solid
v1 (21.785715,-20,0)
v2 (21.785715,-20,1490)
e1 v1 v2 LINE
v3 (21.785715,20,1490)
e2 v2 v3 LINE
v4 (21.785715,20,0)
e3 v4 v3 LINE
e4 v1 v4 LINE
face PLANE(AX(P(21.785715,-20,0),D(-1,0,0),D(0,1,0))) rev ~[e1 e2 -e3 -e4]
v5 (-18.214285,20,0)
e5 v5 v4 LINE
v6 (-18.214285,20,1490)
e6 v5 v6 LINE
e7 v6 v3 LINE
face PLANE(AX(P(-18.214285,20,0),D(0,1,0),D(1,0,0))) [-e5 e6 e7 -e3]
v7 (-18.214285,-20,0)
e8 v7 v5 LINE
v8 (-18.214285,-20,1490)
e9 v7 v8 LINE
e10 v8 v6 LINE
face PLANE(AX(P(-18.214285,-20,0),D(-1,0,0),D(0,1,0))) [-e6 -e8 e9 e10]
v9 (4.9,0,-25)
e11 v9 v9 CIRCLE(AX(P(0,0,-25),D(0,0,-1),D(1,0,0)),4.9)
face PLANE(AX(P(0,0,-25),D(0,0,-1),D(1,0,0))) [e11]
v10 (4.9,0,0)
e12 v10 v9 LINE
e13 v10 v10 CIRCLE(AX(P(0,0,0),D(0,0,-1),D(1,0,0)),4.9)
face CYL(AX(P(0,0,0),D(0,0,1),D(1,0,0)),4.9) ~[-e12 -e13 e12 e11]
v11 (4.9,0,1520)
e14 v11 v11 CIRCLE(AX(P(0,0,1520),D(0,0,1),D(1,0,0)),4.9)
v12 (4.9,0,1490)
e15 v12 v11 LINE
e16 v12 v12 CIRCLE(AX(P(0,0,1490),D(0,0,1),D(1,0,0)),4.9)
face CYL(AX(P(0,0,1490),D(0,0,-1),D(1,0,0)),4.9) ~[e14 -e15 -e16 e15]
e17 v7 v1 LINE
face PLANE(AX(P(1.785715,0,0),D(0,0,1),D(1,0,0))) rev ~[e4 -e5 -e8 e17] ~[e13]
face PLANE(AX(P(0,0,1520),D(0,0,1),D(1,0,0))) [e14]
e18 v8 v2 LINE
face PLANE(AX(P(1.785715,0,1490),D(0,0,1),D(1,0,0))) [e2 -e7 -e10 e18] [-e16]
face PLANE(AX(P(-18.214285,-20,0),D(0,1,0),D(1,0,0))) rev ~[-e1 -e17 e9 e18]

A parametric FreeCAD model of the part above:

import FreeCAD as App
import Part
import Sketcher
from FreeCAD import Vector

doc = App.newDocument("Part")
body = doc.addObject("PartDesign::Body", "Body")

sketch1 = body.newObject("Sketcher::SketchObject", "Sketch")
sketch1.AttachmentSupport = (doc.getObject("XY_Plane"), [""])
sketch1.MapMode = "FlatFace"
sketch1.addGeometry([
    Part.LineSegment(Vector(-18, 20, 0), Vector(-18, -20, 0)),
    Part.LineSegment(Vector(-18, -20, 0), Vector(22, -20, 0)),
    Part.LineSegment(Vector(22, -20, 0), Vector(22, 20, 0)),
    Part.LineSegment(Vector(22, 20, 0), Vector(-18, 20, 0)),
], False)
sketch1.addConstraint([
    Sketcher.Constraint("Coincident", 0, 2, 1, 1),
    Sketcher.Constraint("Coincident", 1, 2, 2, 1),
    Sketcher.Constraint("Coincident", 2, 2, 3, 1),
    Sketcher.Constraint("Coincident", 3, 2, 0, 1),
    Sketcher.Constraint("Vertical", 0),
    Sketcher.Constraint("Horizontal", 1),
    Sketcher.Constraint("Vertical", 2),
    Sketcher.Constraint("Horizontal", 3),
    Sketcher.Constraint("Equal", 3, 0),
    Sketcher.Constraint("DistanceX", 1, 1, 1, 2, 40.0),
    Sketcher.Constraint("DistanceY", 0, 2, -1, 1, 20.0),
    Sketcher.Constraint("DistanceX", 0, 2, -1, 1, 18.214285),
])
pad1 = body.newObject("PartDesign::Pad", "Pad")
pad1.Profile = sketch1
pad1.Length = 1490

sketch2 = body.newObject("Sketcher::SketchObject", "Sketch001")
sketch2.AttachmentSupport = (doc.getObject("XY_Plane"), [""])
sketch2.MapMode = "FlatFace"
sketch2.AttachmentOffset = App.Placement(Vector(0, 0, 1490), App.Rotation())
sketch2.addGeometry(Part.Circle(Vector(0, 0, 0), Vector(0, 0, 1), 4.9), False)
sketch2.addConstraint([
    Sketcher.Constraint("Coincident", 0, 3, -1, 1),
    Sketcher.Constraint("Diameter", 0, 9.8),
])
pad2 = body.newObject("PartDesign::Pad", "Pad001")
pad2.Profile = sketch2
pad2.Length = 30

sketch3 = body.newObject("Sketcher::SketchObject", "Sketch002")
sketch3.AttachmentSupport = (doc.getObject("XY_Plane"), [""])
sketch3.MapMode = "FlatFace"
sketch3.addGeometry(Part.Circle(Vector(0, 0, 0), Vector(0, 0, 1), 4.9), False)
sketch3.addConstraint([
    Sketcher.Constraint("Coincident", 0, 3, -1, 1),
    Sketcher.Constraint("Diameter", 0, 9.8),
])
pad3 = body.newObject("PartDesign::Pad", "Pad002")
pad3.Profile = sketch3
pad3.Length = 25
pad3.Reversed = True

doc.recompute()
